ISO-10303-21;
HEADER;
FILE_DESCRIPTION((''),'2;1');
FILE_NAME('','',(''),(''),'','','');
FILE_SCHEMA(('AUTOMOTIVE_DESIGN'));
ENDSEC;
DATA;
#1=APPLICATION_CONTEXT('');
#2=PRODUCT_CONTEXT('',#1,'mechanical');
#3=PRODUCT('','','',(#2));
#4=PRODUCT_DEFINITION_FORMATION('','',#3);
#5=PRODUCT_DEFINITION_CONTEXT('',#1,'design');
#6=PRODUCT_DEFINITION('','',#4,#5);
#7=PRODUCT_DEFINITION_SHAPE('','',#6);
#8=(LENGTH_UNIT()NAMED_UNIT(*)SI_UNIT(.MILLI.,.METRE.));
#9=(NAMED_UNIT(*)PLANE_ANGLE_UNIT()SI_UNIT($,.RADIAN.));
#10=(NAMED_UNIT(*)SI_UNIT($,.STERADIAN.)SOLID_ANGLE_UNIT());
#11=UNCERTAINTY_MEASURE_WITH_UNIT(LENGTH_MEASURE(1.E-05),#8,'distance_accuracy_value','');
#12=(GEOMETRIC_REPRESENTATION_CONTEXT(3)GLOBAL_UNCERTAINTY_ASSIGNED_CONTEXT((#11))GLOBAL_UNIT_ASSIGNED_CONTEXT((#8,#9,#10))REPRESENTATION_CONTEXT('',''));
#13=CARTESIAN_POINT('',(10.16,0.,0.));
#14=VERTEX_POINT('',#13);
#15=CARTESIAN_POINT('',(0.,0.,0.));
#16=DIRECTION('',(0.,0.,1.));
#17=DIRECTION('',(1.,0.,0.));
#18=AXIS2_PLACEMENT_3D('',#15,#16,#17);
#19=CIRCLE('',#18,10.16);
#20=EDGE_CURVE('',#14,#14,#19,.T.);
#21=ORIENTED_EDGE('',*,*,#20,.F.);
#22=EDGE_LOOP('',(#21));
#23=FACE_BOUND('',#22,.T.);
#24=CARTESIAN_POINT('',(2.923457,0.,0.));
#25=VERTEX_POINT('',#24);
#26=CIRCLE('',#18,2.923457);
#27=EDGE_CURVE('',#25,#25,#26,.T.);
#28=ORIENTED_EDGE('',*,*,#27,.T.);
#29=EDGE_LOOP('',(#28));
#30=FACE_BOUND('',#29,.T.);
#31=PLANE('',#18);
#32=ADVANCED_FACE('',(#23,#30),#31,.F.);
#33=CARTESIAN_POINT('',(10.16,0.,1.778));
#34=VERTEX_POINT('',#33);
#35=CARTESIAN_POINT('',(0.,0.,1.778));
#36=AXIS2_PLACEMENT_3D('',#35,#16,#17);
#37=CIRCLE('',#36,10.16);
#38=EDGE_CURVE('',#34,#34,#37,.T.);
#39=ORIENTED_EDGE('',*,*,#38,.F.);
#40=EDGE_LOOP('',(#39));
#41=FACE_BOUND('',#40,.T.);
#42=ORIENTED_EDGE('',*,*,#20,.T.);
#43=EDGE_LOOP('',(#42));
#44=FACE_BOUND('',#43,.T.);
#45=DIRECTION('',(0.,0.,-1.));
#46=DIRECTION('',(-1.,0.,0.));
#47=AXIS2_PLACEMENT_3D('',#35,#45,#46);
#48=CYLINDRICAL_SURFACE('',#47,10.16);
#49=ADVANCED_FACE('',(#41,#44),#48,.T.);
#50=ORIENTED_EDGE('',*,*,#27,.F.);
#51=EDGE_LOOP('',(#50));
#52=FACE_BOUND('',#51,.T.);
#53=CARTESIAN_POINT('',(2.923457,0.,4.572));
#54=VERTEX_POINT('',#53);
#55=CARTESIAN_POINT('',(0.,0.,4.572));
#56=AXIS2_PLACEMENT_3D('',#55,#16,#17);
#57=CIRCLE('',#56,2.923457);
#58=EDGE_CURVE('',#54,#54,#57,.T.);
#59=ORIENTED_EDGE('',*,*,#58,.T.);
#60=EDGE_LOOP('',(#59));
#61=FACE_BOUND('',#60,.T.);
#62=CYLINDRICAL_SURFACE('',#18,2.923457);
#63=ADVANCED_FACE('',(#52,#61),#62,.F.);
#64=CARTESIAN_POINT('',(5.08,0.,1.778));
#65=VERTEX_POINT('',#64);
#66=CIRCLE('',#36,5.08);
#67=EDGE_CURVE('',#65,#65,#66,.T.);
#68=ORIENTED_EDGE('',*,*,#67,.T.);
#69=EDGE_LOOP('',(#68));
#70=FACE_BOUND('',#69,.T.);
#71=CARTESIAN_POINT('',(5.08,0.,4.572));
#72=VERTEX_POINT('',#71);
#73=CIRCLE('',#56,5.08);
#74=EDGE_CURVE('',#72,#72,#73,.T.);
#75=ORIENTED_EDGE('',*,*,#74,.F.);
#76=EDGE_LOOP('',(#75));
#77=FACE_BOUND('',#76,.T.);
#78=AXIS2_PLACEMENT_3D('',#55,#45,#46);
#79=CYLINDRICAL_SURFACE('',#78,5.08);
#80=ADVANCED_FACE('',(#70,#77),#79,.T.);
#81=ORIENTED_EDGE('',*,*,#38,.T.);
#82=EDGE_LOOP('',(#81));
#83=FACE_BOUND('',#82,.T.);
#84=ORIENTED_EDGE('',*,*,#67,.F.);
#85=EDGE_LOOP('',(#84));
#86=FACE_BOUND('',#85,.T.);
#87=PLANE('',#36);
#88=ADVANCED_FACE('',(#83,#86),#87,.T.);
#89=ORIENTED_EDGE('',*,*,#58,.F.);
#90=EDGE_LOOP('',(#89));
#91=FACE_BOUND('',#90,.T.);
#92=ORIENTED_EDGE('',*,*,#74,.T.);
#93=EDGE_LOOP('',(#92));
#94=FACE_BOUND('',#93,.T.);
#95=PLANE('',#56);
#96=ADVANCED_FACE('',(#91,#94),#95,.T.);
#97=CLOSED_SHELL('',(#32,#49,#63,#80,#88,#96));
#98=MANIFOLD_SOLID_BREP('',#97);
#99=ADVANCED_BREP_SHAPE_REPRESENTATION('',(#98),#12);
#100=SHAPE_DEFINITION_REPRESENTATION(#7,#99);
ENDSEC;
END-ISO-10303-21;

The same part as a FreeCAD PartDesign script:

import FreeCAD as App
import Part
import Sketcher

V = App.Vector
Q = App.Units.Quantity

doc = App.newDocument("Part")
params = doc.addObject("Spreadsheet::Sheet", "Params")
for row, (alias, value) in enumerate([
    ("sketch1_diameter", "0.8 in"),
    ("pad1_length", "0.07 in"),
    ("sketch2_diameter", "0.4 in"),
    ("pad2_length", "0.11 in"),
    ("pocket1_length", "0.18 in"),
], start=1):
    params.set(f"A{row}", alias)
    params.set(f"B{row}", "=" + value)
    params.setAlias(f"B{row}", alias)

body = doc.addObject("PartDesign::Body", "Body")

sketch1 = doc.addObject("Sketcher::SketchObject", "Sketch")
body.addObject(sketch1)
sketch1.AttachmentSupport = (doc.XY_Plane, [""])
sketch1.MapMode = "FlatFace"
sketch1.addGeometry(Part.Circle(V(0, 0, 0), V(0, 0, 1), 10), False)
sketch1.addConstraint([
    Sketcher.Constraint("Coincident", 0, 3, -1, 1),
    Sketcher.Constraint("Diameter", 0, Q("0.8 in")),
])
sketch1.setExpression("Constraints[1]", "Params.sketch1_diameter")
pad1 = doc.addObject("PartDesign::Pad", "Pad")
body.addObject(pad1)
pad1.Profile = sketch1
pad1.setExpression("Length", "Params.pad1_length")

sketch2 = doc.addObject("Sketcher::SketchObject", "Sketch001")
body.addObject(sketch2)
sketch2.AttachmentSupport = (doc.XY_Plane, [""])
sketch2.MapMode = "FlatFace"
sketch2.AttachmentOffset = App.Placement(V(0, 0, 0.07 * 25.4), App.Rotation())
sketch2.addGeometry(Part.Circle(V(0, 0, 0), V(0, 0, 1), 5), False)
sketch2.addConstraint([
    Sketcher.Constraint("Coincident", 0, 3, -1, 1),
    Sketcher.Constraint("Diameter", 0, Q("0.4 in")),
])
sketch2.setExpression("Constraints[1]", "Params.sketch2_diameter")
pad2 = doc.addObject("PartDesign::Pad", "Pad001")
body.addObject(pad2)
pad2.Profile = sketch2
pad2.setExpression("Length", "Params.pad2_length")

sketch3 = doc.addObject("Sketcher::SketchObject", "Sketch002")
body.addObject(sketch3)
sketch3.AttachmentSupport = (doc.XY_Plane, [""])
sketch3.MapMode = "FlatFace"
sketch3.AttachmentOffset = App.Placement(V(0, 0, 0.18 * 25.4), App.Rotation())
sketch3.addGeometry(Part.Circle(V(0, 0, 0), V(0, 0, 1), 2.9), False)
sketch3.addConstraint([
    Sketcher.Constraint("Coincident", 0, 3, -1, 1),
    Sketcher.Constraint("Diameter", 0, Q("5.846915 mm")),
])
pocket1 = doc.addObject("PartDesign::Pocket", "Pocket")
body.addObject(pocket1)
pocket1.Profile = sketch3
pocket1.setExpression("Length", "Params.pocket1_length")

doc.recompute()
